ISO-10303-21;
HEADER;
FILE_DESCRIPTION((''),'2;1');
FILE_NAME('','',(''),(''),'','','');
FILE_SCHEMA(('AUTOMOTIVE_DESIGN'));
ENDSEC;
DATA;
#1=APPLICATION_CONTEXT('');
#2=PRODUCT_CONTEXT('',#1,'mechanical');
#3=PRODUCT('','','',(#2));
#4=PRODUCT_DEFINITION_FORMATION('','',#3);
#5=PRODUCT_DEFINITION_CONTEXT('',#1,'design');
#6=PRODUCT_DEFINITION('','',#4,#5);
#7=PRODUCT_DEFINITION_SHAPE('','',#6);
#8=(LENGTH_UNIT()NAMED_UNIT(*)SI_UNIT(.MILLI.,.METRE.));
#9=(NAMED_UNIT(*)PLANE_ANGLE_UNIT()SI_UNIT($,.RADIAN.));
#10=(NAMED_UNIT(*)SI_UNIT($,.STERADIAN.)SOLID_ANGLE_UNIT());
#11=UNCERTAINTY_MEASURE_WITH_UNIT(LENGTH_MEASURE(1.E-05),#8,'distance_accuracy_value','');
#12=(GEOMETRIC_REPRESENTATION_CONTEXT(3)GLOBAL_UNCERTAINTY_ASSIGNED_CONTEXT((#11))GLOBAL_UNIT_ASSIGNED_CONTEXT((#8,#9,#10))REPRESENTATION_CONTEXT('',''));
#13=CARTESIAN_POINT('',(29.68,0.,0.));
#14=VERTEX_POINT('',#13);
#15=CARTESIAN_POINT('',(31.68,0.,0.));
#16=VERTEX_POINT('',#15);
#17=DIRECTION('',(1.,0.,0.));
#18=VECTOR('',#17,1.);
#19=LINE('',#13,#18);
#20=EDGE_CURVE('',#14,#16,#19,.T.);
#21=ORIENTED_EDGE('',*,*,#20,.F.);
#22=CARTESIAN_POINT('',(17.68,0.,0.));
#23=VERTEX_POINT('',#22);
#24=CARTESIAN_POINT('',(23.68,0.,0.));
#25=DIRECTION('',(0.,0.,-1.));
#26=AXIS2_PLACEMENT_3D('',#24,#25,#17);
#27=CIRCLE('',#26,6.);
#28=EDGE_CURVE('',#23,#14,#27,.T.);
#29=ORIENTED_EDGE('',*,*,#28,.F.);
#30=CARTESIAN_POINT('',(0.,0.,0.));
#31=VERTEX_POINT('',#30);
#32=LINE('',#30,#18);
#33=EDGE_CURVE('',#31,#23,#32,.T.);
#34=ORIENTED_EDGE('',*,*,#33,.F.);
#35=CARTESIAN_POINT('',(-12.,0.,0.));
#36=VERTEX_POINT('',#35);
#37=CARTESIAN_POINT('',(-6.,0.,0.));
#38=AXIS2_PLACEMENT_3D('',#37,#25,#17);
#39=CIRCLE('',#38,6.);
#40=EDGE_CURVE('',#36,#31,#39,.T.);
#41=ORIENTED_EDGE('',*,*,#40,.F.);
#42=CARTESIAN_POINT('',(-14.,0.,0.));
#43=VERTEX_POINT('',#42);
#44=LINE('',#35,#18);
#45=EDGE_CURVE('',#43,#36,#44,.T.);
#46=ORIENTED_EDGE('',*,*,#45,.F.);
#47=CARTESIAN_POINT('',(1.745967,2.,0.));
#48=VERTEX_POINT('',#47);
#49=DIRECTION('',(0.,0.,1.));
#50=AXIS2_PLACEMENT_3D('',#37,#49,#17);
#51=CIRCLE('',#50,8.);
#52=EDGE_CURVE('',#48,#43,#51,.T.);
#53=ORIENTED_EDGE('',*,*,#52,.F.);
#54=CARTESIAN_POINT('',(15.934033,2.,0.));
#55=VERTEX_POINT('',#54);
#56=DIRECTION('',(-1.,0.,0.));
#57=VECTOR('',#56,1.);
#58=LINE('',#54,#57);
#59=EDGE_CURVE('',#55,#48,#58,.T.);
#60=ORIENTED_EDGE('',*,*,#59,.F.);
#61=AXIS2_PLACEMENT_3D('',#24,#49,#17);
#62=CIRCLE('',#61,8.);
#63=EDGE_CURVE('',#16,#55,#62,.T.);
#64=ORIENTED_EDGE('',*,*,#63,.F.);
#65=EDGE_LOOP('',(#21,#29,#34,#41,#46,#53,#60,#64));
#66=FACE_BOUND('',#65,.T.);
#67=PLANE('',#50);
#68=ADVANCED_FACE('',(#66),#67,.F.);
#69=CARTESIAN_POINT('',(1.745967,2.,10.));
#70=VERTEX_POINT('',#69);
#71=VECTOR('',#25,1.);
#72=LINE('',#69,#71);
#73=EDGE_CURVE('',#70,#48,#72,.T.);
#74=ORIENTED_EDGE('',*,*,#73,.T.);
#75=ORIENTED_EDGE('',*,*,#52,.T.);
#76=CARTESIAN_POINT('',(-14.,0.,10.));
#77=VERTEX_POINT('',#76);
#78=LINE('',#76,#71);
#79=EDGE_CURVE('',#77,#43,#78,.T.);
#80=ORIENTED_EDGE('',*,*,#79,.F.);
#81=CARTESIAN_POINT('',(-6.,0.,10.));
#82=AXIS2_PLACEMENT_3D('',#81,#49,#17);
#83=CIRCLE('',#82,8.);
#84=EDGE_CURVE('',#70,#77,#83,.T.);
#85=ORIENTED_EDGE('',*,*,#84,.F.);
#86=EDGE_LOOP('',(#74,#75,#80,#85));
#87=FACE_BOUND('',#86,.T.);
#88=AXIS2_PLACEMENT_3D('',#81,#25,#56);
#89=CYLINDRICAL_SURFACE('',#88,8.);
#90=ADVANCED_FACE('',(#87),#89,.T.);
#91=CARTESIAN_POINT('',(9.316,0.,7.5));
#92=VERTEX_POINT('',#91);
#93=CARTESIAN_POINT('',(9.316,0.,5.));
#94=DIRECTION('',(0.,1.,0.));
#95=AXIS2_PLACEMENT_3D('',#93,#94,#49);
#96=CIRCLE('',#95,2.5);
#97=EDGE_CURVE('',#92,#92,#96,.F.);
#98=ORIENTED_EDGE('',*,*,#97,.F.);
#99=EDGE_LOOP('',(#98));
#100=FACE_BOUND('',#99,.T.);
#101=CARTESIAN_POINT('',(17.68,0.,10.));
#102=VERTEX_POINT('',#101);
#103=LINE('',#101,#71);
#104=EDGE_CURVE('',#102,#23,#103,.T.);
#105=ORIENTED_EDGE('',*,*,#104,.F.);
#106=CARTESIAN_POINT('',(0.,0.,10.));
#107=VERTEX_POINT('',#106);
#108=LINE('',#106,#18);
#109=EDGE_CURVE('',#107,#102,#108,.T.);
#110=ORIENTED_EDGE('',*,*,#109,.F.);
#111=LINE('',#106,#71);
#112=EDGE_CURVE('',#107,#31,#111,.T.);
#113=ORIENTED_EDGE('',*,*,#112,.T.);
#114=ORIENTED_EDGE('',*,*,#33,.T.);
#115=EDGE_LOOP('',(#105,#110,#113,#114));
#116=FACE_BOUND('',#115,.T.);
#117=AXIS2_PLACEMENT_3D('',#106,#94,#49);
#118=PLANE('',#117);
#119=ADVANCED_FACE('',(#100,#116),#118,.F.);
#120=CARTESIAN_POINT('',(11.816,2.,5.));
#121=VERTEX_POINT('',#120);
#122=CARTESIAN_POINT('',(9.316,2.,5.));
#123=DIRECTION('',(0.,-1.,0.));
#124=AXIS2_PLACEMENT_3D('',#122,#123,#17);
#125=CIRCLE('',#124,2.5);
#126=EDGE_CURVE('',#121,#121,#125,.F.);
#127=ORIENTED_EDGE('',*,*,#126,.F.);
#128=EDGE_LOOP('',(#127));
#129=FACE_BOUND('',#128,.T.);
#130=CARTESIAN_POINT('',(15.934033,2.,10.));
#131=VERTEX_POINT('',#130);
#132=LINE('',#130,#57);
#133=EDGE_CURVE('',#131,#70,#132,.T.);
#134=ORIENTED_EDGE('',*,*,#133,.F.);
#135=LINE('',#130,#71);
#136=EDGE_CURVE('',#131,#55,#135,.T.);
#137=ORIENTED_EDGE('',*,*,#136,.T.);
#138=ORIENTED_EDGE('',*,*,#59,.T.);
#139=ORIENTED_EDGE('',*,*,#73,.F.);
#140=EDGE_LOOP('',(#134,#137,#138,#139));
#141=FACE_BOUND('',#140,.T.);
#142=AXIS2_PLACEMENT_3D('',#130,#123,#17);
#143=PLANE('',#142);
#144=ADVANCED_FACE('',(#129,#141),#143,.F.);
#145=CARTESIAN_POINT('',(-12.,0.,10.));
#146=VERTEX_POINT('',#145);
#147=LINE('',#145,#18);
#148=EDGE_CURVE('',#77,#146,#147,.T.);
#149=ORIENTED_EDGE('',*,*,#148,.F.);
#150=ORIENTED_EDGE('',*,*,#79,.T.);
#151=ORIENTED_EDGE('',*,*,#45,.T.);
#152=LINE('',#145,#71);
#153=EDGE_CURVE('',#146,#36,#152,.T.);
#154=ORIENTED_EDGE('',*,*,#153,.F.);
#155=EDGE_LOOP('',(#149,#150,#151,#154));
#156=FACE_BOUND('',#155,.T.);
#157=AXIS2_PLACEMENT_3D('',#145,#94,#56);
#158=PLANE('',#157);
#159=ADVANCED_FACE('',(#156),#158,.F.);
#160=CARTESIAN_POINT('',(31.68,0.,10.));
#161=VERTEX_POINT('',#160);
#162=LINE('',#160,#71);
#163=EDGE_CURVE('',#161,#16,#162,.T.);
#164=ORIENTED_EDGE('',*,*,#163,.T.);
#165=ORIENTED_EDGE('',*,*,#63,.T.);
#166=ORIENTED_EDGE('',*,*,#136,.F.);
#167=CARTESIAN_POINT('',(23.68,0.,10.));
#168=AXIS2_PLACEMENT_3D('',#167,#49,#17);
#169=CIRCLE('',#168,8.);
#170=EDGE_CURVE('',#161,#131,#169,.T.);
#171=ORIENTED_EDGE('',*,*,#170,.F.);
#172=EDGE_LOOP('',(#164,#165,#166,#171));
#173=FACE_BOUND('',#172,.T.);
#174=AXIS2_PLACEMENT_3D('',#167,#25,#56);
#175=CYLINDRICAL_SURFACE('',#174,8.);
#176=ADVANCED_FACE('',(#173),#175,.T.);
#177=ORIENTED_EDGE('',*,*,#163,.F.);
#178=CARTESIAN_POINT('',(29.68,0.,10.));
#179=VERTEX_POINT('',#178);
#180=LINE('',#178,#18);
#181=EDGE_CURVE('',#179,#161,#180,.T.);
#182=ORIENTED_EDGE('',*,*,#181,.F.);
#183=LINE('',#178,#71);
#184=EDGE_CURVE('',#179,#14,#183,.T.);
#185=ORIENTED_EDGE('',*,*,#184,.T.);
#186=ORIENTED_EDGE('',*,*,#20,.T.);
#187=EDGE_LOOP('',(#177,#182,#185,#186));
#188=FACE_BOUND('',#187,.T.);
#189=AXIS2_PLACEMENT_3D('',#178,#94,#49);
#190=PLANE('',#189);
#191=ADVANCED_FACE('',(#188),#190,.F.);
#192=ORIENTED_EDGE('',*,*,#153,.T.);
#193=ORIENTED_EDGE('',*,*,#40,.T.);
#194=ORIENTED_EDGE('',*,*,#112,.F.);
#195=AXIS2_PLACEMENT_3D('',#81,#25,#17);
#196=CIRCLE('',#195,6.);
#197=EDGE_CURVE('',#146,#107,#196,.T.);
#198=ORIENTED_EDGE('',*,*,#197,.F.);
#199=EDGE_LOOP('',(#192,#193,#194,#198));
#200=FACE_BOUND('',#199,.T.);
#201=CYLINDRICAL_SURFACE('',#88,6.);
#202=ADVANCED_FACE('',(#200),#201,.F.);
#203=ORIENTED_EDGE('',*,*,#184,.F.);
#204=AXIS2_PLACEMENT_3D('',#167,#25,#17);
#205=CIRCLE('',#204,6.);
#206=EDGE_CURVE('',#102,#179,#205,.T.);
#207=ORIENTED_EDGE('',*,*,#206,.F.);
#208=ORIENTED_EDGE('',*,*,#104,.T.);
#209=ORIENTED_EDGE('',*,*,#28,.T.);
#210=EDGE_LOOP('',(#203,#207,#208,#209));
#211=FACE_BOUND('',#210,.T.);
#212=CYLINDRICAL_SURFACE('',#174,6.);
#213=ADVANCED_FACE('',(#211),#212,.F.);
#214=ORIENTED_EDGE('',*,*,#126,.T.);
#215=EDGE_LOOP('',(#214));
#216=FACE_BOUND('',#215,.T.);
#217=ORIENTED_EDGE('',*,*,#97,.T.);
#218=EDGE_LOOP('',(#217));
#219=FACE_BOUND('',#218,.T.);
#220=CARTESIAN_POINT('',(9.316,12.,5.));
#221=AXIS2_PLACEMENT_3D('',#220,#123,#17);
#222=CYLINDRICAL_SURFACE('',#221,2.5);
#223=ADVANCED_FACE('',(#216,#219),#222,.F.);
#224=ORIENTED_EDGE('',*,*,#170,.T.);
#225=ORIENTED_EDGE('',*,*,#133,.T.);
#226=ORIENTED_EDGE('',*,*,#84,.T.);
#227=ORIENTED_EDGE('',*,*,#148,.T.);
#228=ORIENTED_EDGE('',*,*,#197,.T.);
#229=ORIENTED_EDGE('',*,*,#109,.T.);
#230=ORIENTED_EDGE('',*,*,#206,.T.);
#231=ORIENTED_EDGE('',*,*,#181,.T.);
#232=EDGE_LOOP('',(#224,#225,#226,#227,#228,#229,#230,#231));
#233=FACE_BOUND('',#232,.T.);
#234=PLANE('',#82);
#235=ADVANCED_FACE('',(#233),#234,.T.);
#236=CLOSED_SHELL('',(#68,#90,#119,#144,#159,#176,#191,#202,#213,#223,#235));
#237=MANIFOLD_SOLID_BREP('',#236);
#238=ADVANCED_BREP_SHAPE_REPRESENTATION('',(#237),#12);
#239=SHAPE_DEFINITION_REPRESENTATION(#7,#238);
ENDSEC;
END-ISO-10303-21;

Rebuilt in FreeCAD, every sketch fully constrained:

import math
import FreeCAD as App
import Part
import Sketcher

V = App.Vector
Q = App.Units.Quantity

doc = App.newDocument("Part")
params = doc.addObject("Spreadsheet::Sheet", "Params")
for row, (alias, value) in enumerate([
    ("sketch1_radius", "6 mm"),
    ("sketch1_radius2", "8 mm"),
    ("sketch1_width", "17.68 mm"),
    ("pad1_length", "10 mm"),
    ("sketch2_diameter", "5 mm"),
], start=1):
    params.set(f"A{row}", alias)
    params.set(f"B{row}", "=" + value)
    params.setAlias(f"B{row}", alias)

body = doc.addObject("PartDesign::Body", "Body")

# Sketch on XY plane
sketch1 = body.newObject("Sketcher::SketchObject", "Sketch")
sketch1.AttachmentSupport = (doc.getObject("XY_Plane"), [""])
sketch1.MapMode = "FlatFace"
sketch1.addGeometry([
    Part.LineSegment(V(0, 0, 0), V(17.7, 0, 0)),  # 0
    Part.ArcOfCircle(Part.Circle(V(23.7, 0, 0), V(0, 0, 1), 6), math.radians(0), math.radians(180)),  # 1
    Part.LineSegment(V(29.7, 0, 0), V(31.7, 0, 0)),  # 2
    Part.ArcOfCircle(Part.Circle(V(23.7, 0, 0), V(0, 0, 1), 8), math.radians(0), math.radians(166)),  # 3
    Part.LineSegment(V(15.9, 2, 0), V(1.7, 2, 0)),  # 4
    Part.ArcOfCircle(Part.Circle(V(-6, 0, 0), V(0, 0, 1), 8), math.radians(14), math.radians(180)),  # 5
    Part.LineSegment(V(-14, 0, 0), V(-12, 0, 0)),  # 6
    Part.ArcOfCircle(Part.Circle(V(-6, 0, 0), V(0, 0, 1), 6), math.radians(0), math.radians(180)),  # 7
], False)
sketch1.addConstraint([
    Sketcher.Constraint("Coincident", 0, 2, 1, 2),
    Sketcher.Constraint("Coincident", 1, 1, 2, 1),
    Sketcher.Constraint("Coincident", 2, 2, 3, 1),
    Sketcher.Constraint("Coincident", 3, 2, 4, 1),
    Sketcher.Constraint("Coincident", 4, 2, 5, 1),
    Sketcher.Constraint("Coincident", 5, 2, 6, 1),
    Sketcher.Constraint("Coincident", 6, 2, 7, 2),
    Sketcher.Constraint("Coincident", 7, 1, 0, 1),
    Sketcher.Constraint("Horizontal", 0),
    Sketcher.Constraint("Horizontal", 2),
    Sketcher.Constraint("Horizontal", 4),
    Sketcher.Constraint("Horizontal", 6),
    Sketcher.Constraint("Coincident", 7, 1, -1, 1),
    Sketcher.Constraint("Coincident", 3, 3, 1, 3),
    Sketcher.Constraint("Coincident", 7, 3, 5, 3),
    Sketcher.Constraint("Equal", 3, 5),
    Sketcher.Constraint("Equal", 1, 7),
    Sketcher.Constraint("PointOnObject", 1, 3, -1),
    Sketcher.Constraint("PointOnObject", 5, 3, -1),
    Sketcher.Constraint("PointOnObject", 1, 1, -1),
    Sketcher.Constraint("PointOnObject", 5, 2, -1),
    Sketcher.Constraint("Radius", 1, Q("6 mm")),
    Sketcher.Constraint("Radius", 3, Q("8 mm")),
    Sketcher.Constraint("DistanceY", -1, 1, 3, 2, Q("2 mm")),
    Sketcher.Constraint("DistanceX", 0, 1, 0, 2, Q("17.68 mm")),
])
sketch1.setExpression("Constraints[21]", "Params.sketch1_radius")
sketch1.setExpression("Constraints[22]", "Params.sketch1_radius2")
sketch1.setExpression("Constraints[24]", "Params.sketch1_width")
pad1 = body.newObject("PartDesign::Pad", "Pad")
pad1.Profile = sketch1
pad1.setExpression("Length", "Params.pad1_length")

# Sketch on XZ plane
sketch2 = body.newObject("Sketcher::SketchObject", "Sketch001")
sketch2.AttachmentSupport = (doc.getObject("XZ_Plane"), [""])
sketch2.MapMode = "FlatFace"
sketch2.AttachmentOffset = App.Placement(V(0, 0, -2), App.Rotation())
sketch2.addGeometry(Part.Circle(V(9.3, 5, 0), V(0, 0, 1), 2.5), False)
sketch2.addConstraint([
    Sketcher.Constraint("Diameter", 0, Q("5 mm")),
    Sketcher.Constraint("DistanceY", -1, 1, 0, 3, Q("5 mm")),
    Sketcher.Constraint("DistanceX", -1, 1, 0, 3, Q("9.316 mm")),
])
sketch2.setExpression("Constraints[0]", "Params.sketch2_diameter")
pocket1 = body.newObject("PartDesign::Pocket", "Pocket")
pocket1.Profile = sketch2
pocket1.Type = "ThroughAll"
pocket1.Midplane = True

doc.recompute()
